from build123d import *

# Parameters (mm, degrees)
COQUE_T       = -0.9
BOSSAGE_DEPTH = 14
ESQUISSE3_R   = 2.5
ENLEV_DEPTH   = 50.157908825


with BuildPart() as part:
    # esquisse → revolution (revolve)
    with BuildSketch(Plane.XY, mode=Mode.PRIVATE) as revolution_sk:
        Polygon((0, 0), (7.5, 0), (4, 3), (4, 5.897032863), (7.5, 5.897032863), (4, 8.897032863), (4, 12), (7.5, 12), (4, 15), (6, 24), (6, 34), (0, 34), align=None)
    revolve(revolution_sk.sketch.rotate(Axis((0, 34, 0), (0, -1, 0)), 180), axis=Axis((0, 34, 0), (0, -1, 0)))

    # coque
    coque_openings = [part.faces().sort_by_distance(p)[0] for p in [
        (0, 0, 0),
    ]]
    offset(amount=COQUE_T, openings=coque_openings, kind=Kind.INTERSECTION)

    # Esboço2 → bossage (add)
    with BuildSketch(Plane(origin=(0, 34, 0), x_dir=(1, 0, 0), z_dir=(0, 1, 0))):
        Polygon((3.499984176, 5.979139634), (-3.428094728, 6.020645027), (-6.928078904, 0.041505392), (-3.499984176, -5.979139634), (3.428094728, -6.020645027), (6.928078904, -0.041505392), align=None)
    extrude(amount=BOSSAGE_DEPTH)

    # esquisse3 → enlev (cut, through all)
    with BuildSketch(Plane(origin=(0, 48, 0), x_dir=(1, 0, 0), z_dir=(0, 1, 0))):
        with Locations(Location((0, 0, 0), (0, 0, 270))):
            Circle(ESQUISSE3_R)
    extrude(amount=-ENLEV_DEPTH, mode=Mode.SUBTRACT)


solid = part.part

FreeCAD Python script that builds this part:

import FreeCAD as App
import Part
import Sketcher
from FreeCAD import Vector
Q = App.Units.Quantity


def faces_at(feature, points):
    """Names of the faces that lie closest to the given points."""
    faces = feature.Shape.Faces
    near = lambda p: min(range(len(faces)), key=lambda i: faces[i].distToShape(Part.Vertex(*p))[0])
    return sorted({f"Face{near(p) + 1}" for p in points})

doc = App.newDocument("Part")
body = doc.addObject("PartDesign::Body", "Body")

sketch1 = body.newObject("Sketcher::SketchObject", "Sketch")
sketch1.AttachmentSupport = (doc.getObject("XY_Plane"), [""])
sketch1.MapMode = "FlatFace"
sketch1.addGeometry([
    Part.LineSegment(Vector(0, 0, 0), Vector(7.5, 0, 0)),
    Part.LineSegment(Vector(7.5, 0, 0), Vector(4, 3, 0)),
    Part.LineSegment(Vector(4, 3, 0), Vector(4, 5.897033, 0)),
    Part.LineSegment(Vector(4, 5.897033, 0), Vector(7.5, 5.897033, 0)),
    Part.LineSegment(Vector(7.5, 5.897033, 0), Vector(4, 8.897033, 0)),
    Part.LineSegment(Vector(4, 8.897033, 0), Vector(4, 12, 0)),
    Part.LineSegment(Vector(4, 12, 0), Vector(7.5, 12, 0)),
    Part.LineSegment(Vector(7.5, 12, 0), Vector(4, 15, 0)),
    Part.LineSegment(Vector(4, 15, 0), Vector(6, 24, 0)),
    Part.LineSegment(Vector(6, 24, 0), Vector(6, 34, 0)),
    Part.LineSegment(Vector(6, 34, 0), Vector(0, 34, 0)),
    Part.LineSegment(Vector(0, 34, 0), Vector(0, 0, 0)),
], False)
sketch1.addConstraint([
    Sketcher.Constraint("Coincident", 0, 2, 1, 1),
    Sketcher.Constraint("Coincident", 1, 2, 2, 1),
    Sketcher.Constraint("Coincident", 2, 2, 3, 1),
    Sketcher.Constraint("Coincident", 3, 2, 4, 1),
    Sketcher.Constraint("Coincident", 4, 2, 5, 1),
    Sketcher.Constraint("Coincident", 5, 2, 6, 1),
    Sketcher.Constraint("Coincident", 6, 2, 7, 1),
    Sketcher.Constraint("Coincident", 7, 2, 8, 1),
    Sketcher.Constraint("Coincident", 8, 2, 9, 1),
    Sketcher.Constraint("Coincident", 9, 2, 10, 1),
    Sketcher.Constraint("Coincident", 10, 2, 11, 1),
    Sketcher.Constraint("Coincident", 11, 2, 0, 1),
    Sketcher.Constraint("Horizontal", 0),
    Sketcher.Constraint("Vertical", 2),
    Sketcher.Constraint("Horizontal", 3),
    Sketcher.Constraint("Vertical", 5),
    Sketcher.Constraint("Horizontal", 6),
    Sketcher.Constraint("Vertical", 9),
    Sketcher.Constraint("Horizontal", 10),
    Sketcher.Constraint("Vertical", 11),
    Sketcher.Constraint("Coincident", 11, 2, -1, 1),
    Sketcher.Constraint("Parallel", 1, 4),
    Sketcher.Constraint("Parallel", 4, 7),
    Sketcher.Constraint("Vertical", 0, 2, 3, 2),
    Sketcher.Constraint("Vertical", 2, 2, 4, 2),
    Sketcher.Constraint("Vertical", 3, 2, 6, 2),
    Sketcher.Constraint("Vertical", 5, 2, 7, 2),
    Sketcher.Constraint("DistanceX", 10, 2, 10, 1, Q("6 mm")),
    Sketcher.Constraint("DistanceY", 9, 1, 9, 2, Q("10 mm")),
    Sketcher.Constraint("DistanceY", 11, 2, 11, 1, Q("34 mm")),
    Sketcher.Constraint("DistanceX", 0, 1, 0, 2, Q("7.5 mm")),
    Sketcher.Constraint("DistanceX", 3, 1, 3, 2, Q("3.5 mm")),
    Sketcher.Constraint("DistanceY", -1, 1, 1, 2, Q("3 mm")),
    Sketcher.Constraint("DistanceY", -1, 1, 5, 2, Q("12 mm")),
    Sketcher.Constraint("DistanceY", 2, 1, 2, 2, Q("2.897033 mm")),
])
revolution = body.newObject("PartDesign::Revolution", "Revolution")
revolution.Profile = sketch1
revolution.ReferenceAxis = (sketch1, ["V_Axis"])
revolution.Angle = 360
doc.recompute()

thickness = body.newObject("PartDesign::Thickness", "Thickness")
thickness.Base = (revolution, faces_at(revolution, [(0, 0, 0)]))
thickness.Value = 0.9
thickness.Reversed = True
thickness.Join = "Intersection"

sketch2 = body.newObject("Sketcher::SketchObject", "Sketch001")
sketch2.AttachmentSupport = (doc.getObject("XZ_Plane"), [""])
sketch2.MapMode = "FlatFace"
sketch2.AttachmentOffset = App.Placement(Vector(0, 0, -34), App.Rotation())
sketch2.addGeometry([
    Part.LineSegment(Vector(3.499984, -5.97914, 0), Vector(-3.428095, -6.020645, 0)),
    Part.LineSegment(Vector(-3.428095, -6.020645, 0), Vector(-6.928079, -0.041505, 0)),
    Part.LineSegment(Vector(-6.928079, -0.041505, 0), Vector(-3.499984, 5.97914, 0)),
    Part.LineSegment(Vector(-3.499984, 5.97914, 0), Vector(3.428095, 6.020645, 0)),
    Part.LineSegment(Vector(3.428095, 6.020645, 0), Vector(6.928079, 0.041505, 0)),
    Part.LineSegment(Vector(6.928079, 0.041505, 0), Vector(3.499984, -5.97914, 0)),
], False)
sketch2.addConstraint([
    Sketcher.Constraint("Coincident", 0, 2, 1, 1),
    Sketcher.Constraint("Coincident", 1, 2, 2, 1),
    Sketcher.Constraint("Coincident", 2, 2, 3, 1),
    Sketcher.Constraint("Coincident", 3, 2, 4, 1),
    Sketcher.Constraint("Coincident", 4, 2, 5, 1),
    Sketcher.Constraint("Coincident", 5, 2, 0, 1),
    Sketcher.Constraint("Symmetric", 0, 2, 3, 2, -1, 1),
    Sketcher.Constraint("Symmetric", 1, 2, 4, 2, -1, 1),
    Sketcher.Constraint("Symmetric", 2, 2, 5, 2, -1, 1),
    Sketcher.Constraint("Equal", 0, 1),
    Sketcher.Constraint("Equal", 1, 2),
    Sketcher.Constraint("DistanceX", 1, 2, -1, 1, Q("6.928079 mm")),
    Sketcher.Constraint("DistanceY", -1, 1, 2, 2, Q("5.97914 mm")),
    Sketcher.Constraint("DistanceY", 0, 2, 1, 2, Q("5.97914 mm")),
    Sketcher.Constraint("DistanceX", 2, 2, 0, 2, Q("0.071889 mm")),
])
pad1 = body.newObject("PartDesign::Pad", "Pad")
pad1.Profile = sketch2
pad1.Length = 14
pad1.Reversed = True

sketch3 = body.newObject("Sketcher::SketchObject", "Sketch002")
sketch3.AttachmentSupport = (doc.getObject("XZ_Plane"), [""])
sketch3.MapMode = "FlatFace"
sketch3.AttachmentOffset = App.Placement(Vector(0, 0, -48), App.Rotation())
sketch3.addGeometry(Part.Circle(Vector(0, 0, 0), Vector(0, 0, 1), 2.5), False)
sketch3.addConstraint([
    Sketcher.Constraint("Coincident", 0, 3, -1, 1),
    Sketcher.Constraint("Diameter", 0, Q("5 mm")),
])
pocket1 = body.newObject("PartDesign::Pocket", "Pocket")
pocket1.Profile = sketch3
pocket1.Type = "ThroughAll"
pocket1.Reversed = True

doc.recompute()
